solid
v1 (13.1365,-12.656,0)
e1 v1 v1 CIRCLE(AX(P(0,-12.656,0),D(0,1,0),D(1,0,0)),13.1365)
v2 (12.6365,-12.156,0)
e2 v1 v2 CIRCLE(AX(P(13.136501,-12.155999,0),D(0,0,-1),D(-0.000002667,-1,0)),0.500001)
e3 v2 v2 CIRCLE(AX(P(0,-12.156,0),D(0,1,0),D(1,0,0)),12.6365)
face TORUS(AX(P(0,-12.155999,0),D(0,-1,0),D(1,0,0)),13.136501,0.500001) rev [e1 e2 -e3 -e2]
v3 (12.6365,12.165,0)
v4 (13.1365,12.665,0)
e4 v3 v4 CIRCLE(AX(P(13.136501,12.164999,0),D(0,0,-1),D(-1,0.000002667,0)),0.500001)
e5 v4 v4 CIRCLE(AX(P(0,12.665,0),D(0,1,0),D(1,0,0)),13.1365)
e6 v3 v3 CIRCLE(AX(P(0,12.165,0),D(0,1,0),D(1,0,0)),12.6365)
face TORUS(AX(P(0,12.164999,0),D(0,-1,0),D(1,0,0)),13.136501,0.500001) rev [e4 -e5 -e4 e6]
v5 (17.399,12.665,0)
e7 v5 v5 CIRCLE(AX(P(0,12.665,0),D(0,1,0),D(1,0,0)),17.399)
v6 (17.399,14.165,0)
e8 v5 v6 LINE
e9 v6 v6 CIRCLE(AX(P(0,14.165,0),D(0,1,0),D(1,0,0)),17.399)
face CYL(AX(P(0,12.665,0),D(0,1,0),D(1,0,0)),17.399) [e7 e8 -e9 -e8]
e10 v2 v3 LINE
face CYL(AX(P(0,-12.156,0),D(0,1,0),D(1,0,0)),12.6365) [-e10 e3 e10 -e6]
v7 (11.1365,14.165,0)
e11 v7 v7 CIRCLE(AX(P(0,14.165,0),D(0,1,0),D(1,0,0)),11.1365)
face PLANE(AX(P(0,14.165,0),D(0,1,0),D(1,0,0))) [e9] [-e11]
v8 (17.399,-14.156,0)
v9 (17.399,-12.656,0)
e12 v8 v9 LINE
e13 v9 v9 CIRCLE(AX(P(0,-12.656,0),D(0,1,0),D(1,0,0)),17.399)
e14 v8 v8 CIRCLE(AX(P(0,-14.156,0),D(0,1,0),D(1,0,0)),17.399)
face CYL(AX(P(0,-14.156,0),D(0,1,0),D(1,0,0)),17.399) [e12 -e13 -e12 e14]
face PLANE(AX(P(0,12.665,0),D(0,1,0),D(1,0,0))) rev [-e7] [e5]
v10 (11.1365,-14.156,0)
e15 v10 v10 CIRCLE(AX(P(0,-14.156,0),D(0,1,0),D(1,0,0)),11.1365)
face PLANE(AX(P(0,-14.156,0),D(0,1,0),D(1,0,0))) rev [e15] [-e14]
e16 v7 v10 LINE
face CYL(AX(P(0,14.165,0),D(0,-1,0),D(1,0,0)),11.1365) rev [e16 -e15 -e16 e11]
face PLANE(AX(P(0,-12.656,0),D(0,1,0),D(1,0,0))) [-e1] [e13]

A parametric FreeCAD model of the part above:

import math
import FreeCAD as App
import Part
import Sketcher

V = App.Vector
Q = App.Units.Quantity

doc = App.newDocument("Part")
body = doc.addObject("PartDesign::Body", "Body")

sketch1 = doc.addObject("Sketcher::SketchObject", "Sketch")
body.addObject(sketch1)
sketch1.AttachmentSupport = (doc.XY_Plane, [""])
sketch1.MapMode = "FlatFace"
sketch1.addGeometry(Part.LineSegment(V(13.1, 12.7, 0), V(17.4, 12.7, 0)), False)
sketch1.addGeometry(Part.LineSegment(V(17.4, 12.7, 0), V(17.4, 14.2, 0)), False)
sketch1.addGeometry(Part.LineSegment(V(17.4, 14.2, 0), V(11.1, 14.2, 0)), False)
sketch1.addGeometry(Part.LineSegment(V(11.1, 14.2, 0), V(11.1, -14.2, 0)), False)
sketch1.addGeometry(Part.LineSegment(V(11.1, -14.2, 0), V(17.4, -14.2, 0)), False)
sketch1.addGeometry(Part.LineSegment(V(17.4, -14.2, 0), V(17.4, -12.7, 0)), False)
sketch1.addGeometry(Part.LineSegment(V(17.4, -12.7, 0), V(13.1, -12.7, 0)), False)
sketch1.addGeometry(Part.ArcOfCircle(Part.Circle(V(13.1, -12.2, 0), V(0, 0, 1), 0.5), math.radians(-180), math.radians(-90)), False)
sketch1.addGeometry(Part.LineSegment(V(12.6, -12.2, 0), V(12.6, 12.2, 0)), False)
sketch1.addGeometry(Part.ArcOfCircle(Part.Circle(V(13.1, 12.2, 0), V(0, 0, 1), 0.5), math.radians(90), math.radians(180)), False)
sketch1.addConstraint(Sketcher.Constraint("Coincident", 0, 2, 1, 1))
sketch1.addConstraint(Sketcher.Constraint("Coincident", 1, 2, 2, 1))
sketch1.addConstraint(Sketcher.Constraint("Coincident", 2, 2, 3, 1))
sketch1.addConstraint(Sketcher.Constraint("Coincident", 3, 2, 4, 1))
sketch1.addConstraint(Sketcher.Constraint("Coincident", 4, 2, 5, 1))
sketch1.addConstraint(Sketcher.Constraint("Coincident", 5, 2, 6, 1))
sketch1.addConstraint(Sketcher.Constraint("Coincident", 6, 2, 7, 2))
sketch1.addConstraint(Sketcher.Constraint("Coincident", 7, 1, 8, 1))
sketch1.addConstraint(Sketcher.Constraint("Coincident", 8, 2, 9, 2))
sketch1.addConstraint(Sketcher.Constraint("Coincident", 9, 1, 0, 1))
sketch1.addConstraint(Sketcher.Constraint("Horizontal", 0))
sketch1.addConstraint(Sketcher.Constraint("Vertical", 1))
sketch1.addConstraint(Sketcher.Constraint("Horizontal", 2))
sketch1.addConstraint(Sketcher.Constraint("Vertical", 3))
sketch1.addConstraint(Sketcher.Constraint("Horizontal", 4))
sketch1.addConstraint(Sketcher.Constraint("Vertical", 5))
sketch1.addConstraint(Sketcher.Constraint("Horizontal", 6))
sketch1.addConstraint(Sketcher.Constraint("Vertical", 8))
sketch1.addConstraint(Sketcher.Constraint("Equal", 7, 9))
sketch1.addConstraint(Sketcher.Constraint("Horizontal", 9, 3, 8, 2))
sketch1.addConstraint(Sketcher.Constraint("Vertical", 1, 2, 4, 2))
sketch1.addConstraint(Sketcher.Constraint("Vertical", 9, 3, 6, 2))
sketch1.addConstraint(Sketcher.Constraint("Vertical", 6, 2, 9, 1))
sketch1.addConstraint(Sketcher.Constraint("Equal", 1, 5))
sketch1.addConstraint(Sketcher.Constraint("Radius", 7, Q("0.500001 mm")))
sketch1.addConstraint(Sketcher.Constraint("DistanceY", 1, 1, 1, 2, Q("1.5 mm")))
sketch1.addConstraint(Sketcher.Constraint("DistanceX", 2, 2, 9, 3, Q("2.000001 mm")))
sketch1.addConstraint(Sketcher.Constraint("DistanceY", 3, 2, 7, 1, Q("2 mm")))
sketch1.addConstraint(Sketcher.Constraint("DistanceY", 3, 2, 3, 1, Q("28.321 mm")))
sketch1.addConstraint(Sketcher.Constraint("DistanceX", 0, 1, 0, 2, Q("4.2625 mm")))
sketch1.addConstraint(Sketcher.Constraint("DistanceY", 7, 3, -1, 1, Q("12.155999 mm")))
sketch1.addConstraint(Sketcher.Constraint("DistanceX", -1, 1, 0, 2, Q("17.399 mm")))
revolution = doc.addObject("PartDesign::Revolution", "Revolution")
body.addObject(revolution)
revolution.Profile = sketch1
revolution.ReferenceAxis = (sketch1, ["V_Axis"])
revolution.Angle = 360

doc.recompute()
